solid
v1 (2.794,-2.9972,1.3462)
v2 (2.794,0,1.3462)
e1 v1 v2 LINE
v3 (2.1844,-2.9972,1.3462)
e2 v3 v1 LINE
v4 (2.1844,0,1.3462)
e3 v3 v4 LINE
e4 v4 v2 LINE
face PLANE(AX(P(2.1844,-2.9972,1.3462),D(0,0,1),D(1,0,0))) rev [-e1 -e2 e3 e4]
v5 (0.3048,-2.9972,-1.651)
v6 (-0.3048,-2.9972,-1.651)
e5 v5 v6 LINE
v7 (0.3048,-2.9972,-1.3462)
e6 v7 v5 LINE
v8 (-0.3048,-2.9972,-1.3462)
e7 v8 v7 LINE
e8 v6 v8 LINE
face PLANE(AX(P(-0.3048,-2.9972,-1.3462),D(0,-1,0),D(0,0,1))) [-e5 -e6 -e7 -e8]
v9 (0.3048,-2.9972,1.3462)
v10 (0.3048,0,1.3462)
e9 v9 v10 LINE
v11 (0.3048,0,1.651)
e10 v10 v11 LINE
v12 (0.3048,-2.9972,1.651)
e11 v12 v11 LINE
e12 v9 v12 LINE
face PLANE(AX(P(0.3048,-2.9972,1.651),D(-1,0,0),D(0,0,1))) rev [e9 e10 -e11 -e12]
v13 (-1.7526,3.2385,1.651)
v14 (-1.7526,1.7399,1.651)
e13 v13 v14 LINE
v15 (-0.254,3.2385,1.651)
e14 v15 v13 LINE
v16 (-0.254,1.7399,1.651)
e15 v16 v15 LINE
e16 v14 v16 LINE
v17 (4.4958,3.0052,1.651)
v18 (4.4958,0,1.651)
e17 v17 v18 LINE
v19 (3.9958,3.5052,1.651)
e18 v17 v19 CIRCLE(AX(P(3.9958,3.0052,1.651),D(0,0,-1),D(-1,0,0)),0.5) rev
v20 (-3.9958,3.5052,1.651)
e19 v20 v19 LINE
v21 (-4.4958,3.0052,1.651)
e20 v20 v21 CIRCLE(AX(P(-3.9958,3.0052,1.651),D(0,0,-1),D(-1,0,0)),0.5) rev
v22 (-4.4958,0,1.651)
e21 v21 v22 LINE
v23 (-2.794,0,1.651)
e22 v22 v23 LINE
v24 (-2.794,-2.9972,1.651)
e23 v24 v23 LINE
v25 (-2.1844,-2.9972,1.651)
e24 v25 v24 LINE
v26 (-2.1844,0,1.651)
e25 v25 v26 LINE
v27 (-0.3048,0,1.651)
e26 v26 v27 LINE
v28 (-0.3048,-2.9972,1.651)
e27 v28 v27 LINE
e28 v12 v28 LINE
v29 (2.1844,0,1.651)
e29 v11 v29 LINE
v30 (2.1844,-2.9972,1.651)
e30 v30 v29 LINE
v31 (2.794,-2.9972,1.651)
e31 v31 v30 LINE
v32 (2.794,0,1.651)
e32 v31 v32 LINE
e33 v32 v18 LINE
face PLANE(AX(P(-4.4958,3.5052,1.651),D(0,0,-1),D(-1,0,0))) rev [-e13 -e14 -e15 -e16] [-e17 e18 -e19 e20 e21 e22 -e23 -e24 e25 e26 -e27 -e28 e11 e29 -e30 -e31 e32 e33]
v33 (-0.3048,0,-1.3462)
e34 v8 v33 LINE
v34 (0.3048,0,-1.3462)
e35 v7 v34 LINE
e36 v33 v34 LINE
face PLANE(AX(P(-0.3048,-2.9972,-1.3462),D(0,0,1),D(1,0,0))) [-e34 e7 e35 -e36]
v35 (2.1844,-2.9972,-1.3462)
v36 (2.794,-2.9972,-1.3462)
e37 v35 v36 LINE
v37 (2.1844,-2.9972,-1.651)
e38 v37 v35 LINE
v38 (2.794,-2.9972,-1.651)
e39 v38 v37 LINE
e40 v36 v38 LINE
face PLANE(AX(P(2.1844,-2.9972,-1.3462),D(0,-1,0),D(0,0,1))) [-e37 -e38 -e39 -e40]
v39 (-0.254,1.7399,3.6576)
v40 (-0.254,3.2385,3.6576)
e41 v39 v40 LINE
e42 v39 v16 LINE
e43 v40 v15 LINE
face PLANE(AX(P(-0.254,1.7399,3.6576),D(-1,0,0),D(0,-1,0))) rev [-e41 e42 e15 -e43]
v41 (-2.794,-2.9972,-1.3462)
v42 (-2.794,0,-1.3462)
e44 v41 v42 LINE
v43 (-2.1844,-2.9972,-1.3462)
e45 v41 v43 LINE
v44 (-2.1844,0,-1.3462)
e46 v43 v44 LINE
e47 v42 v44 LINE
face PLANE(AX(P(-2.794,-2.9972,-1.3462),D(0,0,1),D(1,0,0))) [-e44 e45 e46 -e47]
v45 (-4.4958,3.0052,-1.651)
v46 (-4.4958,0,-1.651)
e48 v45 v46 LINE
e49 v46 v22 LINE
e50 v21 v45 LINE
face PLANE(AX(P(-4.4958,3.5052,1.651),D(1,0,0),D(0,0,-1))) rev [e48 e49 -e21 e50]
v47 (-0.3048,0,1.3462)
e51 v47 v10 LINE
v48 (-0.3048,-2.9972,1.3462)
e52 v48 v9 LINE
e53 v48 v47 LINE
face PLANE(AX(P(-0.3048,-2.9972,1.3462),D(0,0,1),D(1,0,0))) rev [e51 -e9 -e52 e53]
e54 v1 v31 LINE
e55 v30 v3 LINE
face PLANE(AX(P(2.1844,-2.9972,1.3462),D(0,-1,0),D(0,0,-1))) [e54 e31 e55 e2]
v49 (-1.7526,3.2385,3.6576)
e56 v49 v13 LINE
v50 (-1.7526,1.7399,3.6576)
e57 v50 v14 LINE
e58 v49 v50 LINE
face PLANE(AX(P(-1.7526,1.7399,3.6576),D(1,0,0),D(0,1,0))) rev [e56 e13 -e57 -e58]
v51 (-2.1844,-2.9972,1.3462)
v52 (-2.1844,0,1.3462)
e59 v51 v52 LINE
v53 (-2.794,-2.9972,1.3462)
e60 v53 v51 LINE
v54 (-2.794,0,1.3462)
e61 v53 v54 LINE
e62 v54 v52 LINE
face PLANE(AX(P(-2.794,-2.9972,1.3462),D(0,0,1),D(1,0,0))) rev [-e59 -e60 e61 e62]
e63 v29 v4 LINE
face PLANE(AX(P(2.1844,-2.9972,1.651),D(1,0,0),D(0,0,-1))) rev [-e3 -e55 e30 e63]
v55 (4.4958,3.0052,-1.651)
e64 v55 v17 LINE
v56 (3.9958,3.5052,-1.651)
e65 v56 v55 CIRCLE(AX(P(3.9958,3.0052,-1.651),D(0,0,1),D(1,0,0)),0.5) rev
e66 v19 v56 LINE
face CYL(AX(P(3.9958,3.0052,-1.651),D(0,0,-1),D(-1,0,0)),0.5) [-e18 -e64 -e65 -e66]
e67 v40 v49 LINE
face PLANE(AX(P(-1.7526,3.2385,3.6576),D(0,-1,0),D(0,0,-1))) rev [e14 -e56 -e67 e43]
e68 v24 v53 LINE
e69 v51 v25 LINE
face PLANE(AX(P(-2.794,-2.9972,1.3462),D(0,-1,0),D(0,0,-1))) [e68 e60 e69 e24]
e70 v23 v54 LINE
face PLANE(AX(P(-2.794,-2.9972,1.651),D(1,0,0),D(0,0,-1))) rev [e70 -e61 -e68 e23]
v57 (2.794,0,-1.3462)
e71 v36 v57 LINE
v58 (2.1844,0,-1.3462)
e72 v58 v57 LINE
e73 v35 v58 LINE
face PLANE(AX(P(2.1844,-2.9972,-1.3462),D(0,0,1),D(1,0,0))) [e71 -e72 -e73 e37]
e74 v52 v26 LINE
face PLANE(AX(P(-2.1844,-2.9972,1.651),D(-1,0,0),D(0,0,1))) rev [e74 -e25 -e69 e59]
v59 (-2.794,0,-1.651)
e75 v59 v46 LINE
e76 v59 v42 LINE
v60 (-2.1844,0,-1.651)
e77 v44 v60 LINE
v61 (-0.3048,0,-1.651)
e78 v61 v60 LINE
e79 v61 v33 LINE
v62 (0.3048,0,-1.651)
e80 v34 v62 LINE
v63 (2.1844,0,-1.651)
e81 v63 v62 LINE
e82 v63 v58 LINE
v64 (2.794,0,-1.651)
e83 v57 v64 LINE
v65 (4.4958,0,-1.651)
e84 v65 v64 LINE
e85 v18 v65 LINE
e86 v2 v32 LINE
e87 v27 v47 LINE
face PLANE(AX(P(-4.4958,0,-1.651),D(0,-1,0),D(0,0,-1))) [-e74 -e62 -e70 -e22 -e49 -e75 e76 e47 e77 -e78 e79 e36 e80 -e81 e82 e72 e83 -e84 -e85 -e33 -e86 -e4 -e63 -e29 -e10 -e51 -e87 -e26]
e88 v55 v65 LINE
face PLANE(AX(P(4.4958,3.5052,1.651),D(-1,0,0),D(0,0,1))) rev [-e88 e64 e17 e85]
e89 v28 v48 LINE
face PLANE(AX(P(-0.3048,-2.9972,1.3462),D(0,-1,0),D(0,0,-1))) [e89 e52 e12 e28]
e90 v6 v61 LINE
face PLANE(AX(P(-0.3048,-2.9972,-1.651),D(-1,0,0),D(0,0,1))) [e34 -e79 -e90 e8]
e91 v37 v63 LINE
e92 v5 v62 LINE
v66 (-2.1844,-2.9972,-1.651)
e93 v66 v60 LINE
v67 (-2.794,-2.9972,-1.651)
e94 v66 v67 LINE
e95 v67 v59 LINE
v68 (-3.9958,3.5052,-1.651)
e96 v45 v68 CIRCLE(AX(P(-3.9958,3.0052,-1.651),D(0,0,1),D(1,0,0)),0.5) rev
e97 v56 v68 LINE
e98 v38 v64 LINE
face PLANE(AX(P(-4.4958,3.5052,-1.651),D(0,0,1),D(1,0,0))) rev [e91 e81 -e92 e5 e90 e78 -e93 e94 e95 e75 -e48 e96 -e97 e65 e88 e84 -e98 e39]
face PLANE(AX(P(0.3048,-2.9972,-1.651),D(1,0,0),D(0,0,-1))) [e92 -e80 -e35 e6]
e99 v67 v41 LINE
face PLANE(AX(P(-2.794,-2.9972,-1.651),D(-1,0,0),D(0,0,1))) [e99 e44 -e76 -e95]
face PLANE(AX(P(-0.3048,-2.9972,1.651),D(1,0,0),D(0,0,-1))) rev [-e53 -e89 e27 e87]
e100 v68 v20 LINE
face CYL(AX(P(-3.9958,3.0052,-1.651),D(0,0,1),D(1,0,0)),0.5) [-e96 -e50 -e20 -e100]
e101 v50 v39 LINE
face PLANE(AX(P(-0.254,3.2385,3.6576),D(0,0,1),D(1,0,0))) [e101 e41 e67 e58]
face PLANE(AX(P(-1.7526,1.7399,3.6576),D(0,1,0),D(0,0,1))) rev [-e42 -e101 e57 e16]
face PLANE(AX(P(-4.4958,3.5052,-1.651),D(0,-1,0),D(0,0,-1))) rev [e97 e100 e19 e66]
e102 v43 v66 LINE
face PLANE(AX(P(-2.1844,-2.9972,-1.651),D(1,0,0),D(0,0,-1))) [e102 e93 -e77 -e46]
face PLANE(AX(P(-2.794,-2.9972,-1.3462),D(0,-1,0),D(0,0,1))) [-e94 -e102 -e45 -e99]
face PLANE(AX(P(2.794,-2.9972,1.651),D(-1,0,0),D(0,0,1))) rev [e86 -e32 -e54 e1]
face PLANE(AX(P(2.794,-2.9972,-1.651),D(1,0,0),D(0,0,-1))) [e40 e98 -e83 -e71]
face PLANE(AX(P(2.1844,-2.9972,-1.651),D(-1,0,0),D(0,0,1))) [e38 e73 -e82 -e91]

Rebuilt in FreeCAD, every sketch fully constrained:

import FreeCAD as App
import Part
import Sketcher
from FreeCAD import Vector
Q = App.Units.Quantity


def edges_at(feature, points):
    """Names of the edges that pass closest to the given points."""
    edges = feature.Shape.Edges
    near = lambda p: min(range(len(edges)), key=lambda i: edges[i].distToShape(Part.Vertex(*p))[0])
    return sorted({f"Edge{near(p) + 1}" for p in points})

doc = App.newDocument("Part")
params = doc.addObject("Spreadsheet::Sheet", "Params")
for row, (alias, value) in enumerate([
    ("sketch1_height", "0.13 in"),
    ("sketch1_width", "0.354 in"),
    ("pad1_length", "0.138 in"),
    ("sketch2_width", "0.059 in"),
    ("pad2_length", "0.079 in"),
    ("fillet_radius", "0.5 mm"),
    ("sketch3_width", "0.024 in"),
    ("sketch3_height", "0.012 in"),
    ("pad3_length", "0.118 in"),
    ("linearpattern_pitch", "0.098 in"),
    ("sketch4_width", "0.024 in"),
    ("sketch4_height", "0.012 in"),
    ("pad4_length", "0.118 in"),
    ("sketch5_width", "0.024 in"),
    ("sketch5_height", "0.012 in"),
    ("pad5_length", "0.118 in"),
], start=1):
    params.set(f"A{row}", alias)
    params.set(f"B{row}", "=" + value)
    params.setAlias(f"B{row}", alias)

body = doc.addObject("PartDesign::Body", "Body")

sketch1 = doc.addObject("Sketcher::SketchObject", "Sketch")
body.addObject(sketch1)
sketch1.AttachmentSupport = (doc.XZ_Plane, [""])
sketch1.MapMode = "FlatFace"
sketch1.addGeometry([
    Part.LineSegment(Vector(-4.4958, -1.651, 0), Vector(-4.4958, 1.651, 0)),
    Part.LineSegment(Vector(-4.4958, 1.651, 0), Vector(4.4958, 1.651, 0)),
    Part.LineSegment(Vector(4.4958, 1.651, 0), Vector(4.4958, -1.651, 0)),
    Part.LineSegment(Vector(4.4958, -1.651, 0), Vector(-4.4958, -1.651, 0)),
], False)
sketch1.addConstraint([
    Sketcher.Constraint("Coincident", 0, 2, 1, 1),
    Sketcher.Constraint("Coincident", 1, 2, 2, 1),
    Sketcher.Constraint("Coincident", 2, 2, 3, 1),
    Sketcher.Constraint("Coincident", 3, 2, 0, 1),
    Sketcher.Constraint("Vertical", 0),
    Sketcher.Constraint("Horizontal", 1),
    Sketcher.Constraint("Vertical", 2),
    Sketcher.Constraint("Horizontal", 3),
    Sketcher.Constraint("Symmetric", 0, 2, 2, 2, -1, 1),
    Sketcher.Constraint("DistanceY", 0, 1, 0, 2, Q("0.13 in")),
    Sketcher.Constraint("DistanceX", 1, 1, 1, 2, Q("0.354 in")),
])
sketch1.setExpression("Constraints[9]", "Params.sketch1_height")
sketch1.setExpression("Constraints[10]", "Params.sketch1_width")
pad1 = doc.addObject("PartDesign::Pad", "Pad")
body.addObject(pad1)
pad1.Profile = sketch1
pad1.setExpression("Length", "Params.pad1_length")
pad1.Reversed = True

sketch2 = doc.addObject("Sketcher::SketchObject", "Sketch001")
body.addObject(sketch2)
sketch2.AttachmentSupport = (doc.XY_Plane, [""])
sketch2.MapMode = "FlatFace"
sketch2.AttachmentOffset = App.Placement(Vector(0, 0, 0.065 * 25.4), App.Rotation())
sketch2.addGeometry([
    Part.LineSegment(Vector(-1.7526, 3.2385, 0), Vector(-1.7526, 1.7399, 0)),
    Part.LineSegment(Vector(-1.7526, 1.7399, 0), Vector(-0.254, 1.7399, 0)),
    Part.LineSegment(Vector(-0.254, 1.7399, 0), Vector(-0.254, 3.2385, 0)),
    Part.LineSegment(Vector(-0.254, 3.2385, 0), Vector(-1.7526, 3.2385, 0)),
], False)
sketch2.addConstraint([
    Sketcher.Constraint("Coincident", 0, 2, 1, 1),
    Sketcher.Constraint("Coincident", 1, 2, 2, 1),
    Sketcher.Constraint("Coincident", 2, 2, 3, 1),
    Sketcher.Constraint("Coincident", 3, 2, 0, 1),
    Sketcher.Constraint("Vertical", 0),
    Sketcher.Constraint("Horizontal", 1),
    Sketcher.Constraint("Vertical", 2),
    Sketcher.Constraint("Horizontal", 3),
    Sketcher.Constraint("Equal", 3, 0),
    Sketcher.Constraint("DistanceX", 1, 1, 1, 2, Q("0.059 in")),
    Sketcher.Constraint("DistanceX", 1, 2, -1, 1, Q("0.01 in")),
    Sketcher.Constraint("DistanceY", -1, 1, 0, 2, Q("0.0685 in")),
])
sketch2.setExpression("Constraints[9]", "Params.sketch2_width")
pad2 = doc.addObject("PartDesign::Pad", "Pad001")
body.addObject(pad2)
pad2.Profile = sketch2
pad2.setExpression("Length", "Params.pad2_length")
doc.recompute()

fillet = doc.addObject("PartDesign::Fillet", "Fillet")
body.addObject(fillet)
fillet.Base = (pad2, edges_at(pad2, [(4.496, 3.505, 0), (-4.496, 3.505, 0)]))
fillet.setExpression("Radius", "Params.fillet_radius")

sketch3 = doc.addObject("Sketcher::SketchObject", "Sketch002")
body.addObject(sketch3)
sketch3.AttachmentSupport = (doc.XZ_Plane, [""])
sketch3.MapMode = "FlatFace"
sketch3.addGeometry([
    Part.LineSegment(Vector(2.1844, 1.651, 0), Vector(2.1844, 1.3462, 0)),
    Part.LineSegment(Vector(2.1844, 1.3462, 0), Vector(2.794, 1.3462, 0)),
    Part.LineSegment(Vector(2.794, 1.3462, 0), Vector(2.794, 1.651, 0)),
    Part.LineSegment(Vector(2.794, 1.651, 0), Vector(2.1844, 1.651, 0)),
], False)
sketch3.addConstraint([
    Sketcher.Constraint("Coincident", 0, 2, 1, 1),
    Sketcher.Constraint("Coincident", 1, 2, 2, 1),
    Sketcher.Constraint("Coincident", 2, 2, 3, 1),
    Sketcher.Constraint("Coincident", 3, 2, 0, 1),
    Sketcher.Constraint("Vertical", 0),
    Sketcher.Constraint("Horizontal", 1),
    Sketcher.Constraint("Vertical", 2),
    Sketcher.Constraint("Horizontal", 3),
    Sketcher.Constraint("DistanceX", 1, 1, 1, 2, Q("0.024 in")),
    Sketcher.Constraint("DistanceY", 0, 2, 0, 1, Q("0.012 in")),
    Sketcher.Constraint("DistanceX", -1, 1, 1, 2, Q("0.11 in")),
    Sketcher.Constraint("DistanceY", -1, 1, 0, 2, Q("0.053 in")),
])
sketch3.setExpression("Constraints[8]", "Params.sketch3_width")
sketch3.setExpression("Constraints[9]", "Params.sketch3_height")
pad3 = doc.addObject("PartDesign::Pad", "Pad002")
body.addObject(pad3)
pad3.Profile = sketch3
pad3.setExpression("Length", "Params.pad3_length")
doc.recompute()

linearpattern = doc.addObject("PartDesign::LinearPattern", "LinearPattern")
body.addObject(linearpattern)
linearpattern.Originals = [pad3]
linearpattern.Direction = (doc.X_Axis, [""])
linearpattern.Mode = "offset"
linearpattern.setExpression("Offset", "Params.linearpattern_pitch")
linearpattern.Occurrences = 3
linearpattern.Reversed = True
body.Tip = linearpattern
doc.recompute()

mirrored = doc.addObject("PartDesign::Mirrored", "Mirrored")
body.addObject(mirrored)
mirrored.Originals = [pad3]
mirrored.MirrorPlane = (doc.XY_Plane, [""])
body.Tip = mirrored

sketch4 = doc.addObject("Sketcher::SketchObject", "Sketch003")
body.addObject(sketch4)
sketch4.AttachmentSupport = (doc.XZ_Plane, [""])
sketch4.MapMode = "FlatFace"
sketch4.addGeometry([
    Part.LineSegment(Vector(-0.3048, -1.3462, 0), Vector(-0.3048, -1.651, 0)),
    Part.LineSegment(Vector(-0.3048, -1.651, 0), Vector(0.3048, -1.651, 0)),
    Part.LineSegment(Vector(0.3048, -1.651, 0), Vector(0.3048, -1.3462, 0)),
    Part.LineSegment(Vector(0.3048, -1.3462, 0), Vector(-0.3048, -1.3462, 0)),
], False)
sketch4.addConstraint([
    Sketcher.Constraint("Coincident", 0, 2, 1, 1),
    Sketcher.Constraint("Coincident", 1, 2, 2, 1),
    Sketcher.Constraint("Coincident", 2, 2, 3, 1),
    Sketcher.Constraint("Coincident", 3, 2, 0, 1),
    Sketcher.Constraint("Vertical", 0),
    Sketcher.Constraint("Horizontal", 1),
    Sketcher.Constraint("Vertical", 2),
    Sketcher.Constraint("Horizontal", 3),
    Sketcher.Constraint("DistanceX", 1, 1, 1, 2, Q("0.024 in")),
    Sketcher.Constraint("DistanceY", 0, 2, 0, 1, Q("0.012 in")),
    Sketcher.Constraint("DistanceX", 0, 2, -1, 1, Q("0.012 in")),
    Sketcher.Constraint("DistanceY", 0, 2, -1, 1, Q("0.065 in")),
])
sketch4.setExpression("Constraints[8]", "Params.sketch4_width")
sketch4.setExpression("Constraints[9]", "Params.sketch4_height")
pad4 = doc.addObject("PartDesign::Pad", "Pad003")
body.addObject(pad4)
pad4.Profile = sketch4
pad4.setExpression("Length", "Params.pad4_length")

sketch5 = doc.addObject("Sketcher::SketchObject", "Sketch004")
body.addObject(sketch5)
sketch5.AttachmentSupport = (doc.XZ_Plane, [""])
sketch5.MapMode = "FlatFace"
sketch5.addGeometry([
    Part.LineSegment(Vector(-2.794, -1.3462, 0), Vector(-2.794, -1.651, 0)),
    Part.LineSegment(Vector(-2.794, -1.651, 0), Vector(-2.1844, -1.651, 0)),
    Part.LineSegment(Vector(-2.1844, -1.651, 0), Vector(-2.1844, -1.3462, 0)),
    Part.LineSegment(Vector(-2.1844, -1.3462, 0), Vector(-2.794, -1.3462, 0)),
], False)
sketch5.addConstraint([
    Sketcher.Constraint("Coincident", 0, 2, 1, 1),
    Sketcher.Constraint("Coincident", 1, 2, 2, 1),
    Sketcher.Constraint("Coincident", 2, 2, 3, 1),
    Sketcher.Constraint("Coincident", 3, 2, 0, 1),
    Sketcher.Constraint("Vertical", 0),
    Sketcher.Constraint("Horizontal", 1),
    Sketcher.Constraint("Vertical", 2),
    Sketcher.Constraint("Horizontal", 3),
    Sketcher.Constraint("DistanceX", 1, 1, 1, 2, Q("0.024 in")),
    Sketcher.Constraint("DistanceY", 0, 2, 0, 1, Q("0.012 in")),
    Sketcher.Constraint("DistanceX", 0, 2, -1, 1, Q("0.11 in")),
    Sketcher.Constraint("DistanceY", 0, 2, -1, 1, Q("0.065 in")),
])
sketch5.setExpression("Constraints[8]", "Params.sketch5_width")
sketch5.setExpression("Constraints[9]", "Params.sketch5_height")
pad5 = doc.addObject("PartDesign::Pad", "Pad004")
body.addObject(pad5)
pad5.Profile = sketch5
pad5.setExpression("Length", "Params.pad5_length")

doc.recompute()
